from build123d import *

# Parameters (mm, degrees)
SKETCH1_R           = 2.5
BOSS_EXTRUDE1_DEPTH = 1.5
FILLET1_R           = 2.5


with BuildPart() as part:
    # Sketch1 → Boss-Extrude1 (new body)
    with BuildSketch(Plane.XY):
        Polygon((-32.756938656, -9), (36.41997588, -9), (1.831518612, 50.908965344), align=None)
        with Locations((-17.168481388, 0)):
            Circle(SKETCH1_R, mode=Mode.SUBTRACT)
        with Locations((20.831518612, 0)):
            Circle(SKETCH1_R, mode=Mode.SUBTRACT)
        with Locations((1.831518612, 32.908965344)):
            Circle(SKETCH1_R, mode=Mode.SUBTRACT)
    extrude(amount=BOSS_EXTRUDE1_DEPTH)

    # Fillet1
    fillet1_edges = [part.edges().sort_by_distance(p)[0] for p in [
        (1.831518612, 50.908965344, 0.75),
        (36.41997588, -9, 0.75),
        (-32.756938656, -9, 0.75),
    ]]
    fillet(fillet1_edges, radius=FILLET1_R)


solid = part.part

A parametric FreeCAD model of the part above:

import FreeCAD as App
import Part
import Sketcher

V = App.Vector
Q = App.Units.Quantity


def edges_at(feature, points):
    """Names of the edges that pass closest to the given points."""
    edges = feature.Shape.Edges
    near = lambda p: min(range(len(edges)), key=lambda i: edges[i].distToShape(Part.Vertex(*p))[0])
    return sorted({f"Edge{near(p) + 1}" for p in points})


def add_polygon(sketch, points):
    """Adds a closed chain of lines whose ends are joined by coincident constraints."""
    first, n = sketch.GeometryCount, len(points)
    for a, b in zip(points, points[1:] + points[:1]):
        sketch.addGeometry(Part.LineSegment(App.Vector(*a, 0), App.Vector(*b, 0)), False)
    for i in range(n):
        sketch.addConstraint(Sketcher.Constraint("Coincident", first + i, 2, first + (i + 1) % n, 1))

doc = App.newDocument("Part")
params = doc.addObject("Spreadsheet::Sheet", "Params")
for row, (alias, value) in enumerate([
    ("sketch1_diameter", "5 mm"),
    ("pad1_length", "1.5 mm"),
    ("fillet_radius", "2.5 mm"),
], start=1):
    params.set(f"A{row}", alias)
    params.set(f"B{row}", "=" + value)
    params.setAlias(f"B{row}", alias)

body = doc.addObject("PartDesign::Body", "Body")

# Sketch on XY plane
sketch1 = doc.addObject("Sketcher::SketchObject", "Sketch")
body.addObject(sketch1)
sketch1.AttachmentSupport = (doc.XY_Plane, [""])
sketch1.MapMode = "FlatFace"
add_polygon(sketch1, [(-32.8, -9), (36.4, -9), (1.8, 50.9)])  # lines 0-2
sketch1.addGeometry(Part.Circle(V(-17.2, 0, 0), V(0, 0, 1), 2.5), False)  # 3
sketch1.addGeometry(Part.Circle(V(20.8, 0, 0), V(0, 0, 1), 2.5), False)  # 4
sketch1.addGeometry(Part.Circle(V(1.8, 32.9, 0), V(0, 0, 1), 2.5), False)  # 5
sketch1.addConstraint([
    Sketcher.Constraint("Horizontal", 0),
    Sketcher.Constraint("Equal", 3, 4),
    Sketcher.Constraint("Equal", 4, 5),
    Sketcher.Constraint("PointOnObject", 3, 3, -1),
    Sketcher.Constraint("PointOnObject", 4, 3, -1),
    Sketcher.Constraint("Vertical", 5, 3, 1, 2),
    Sketcher.Constraint("Equal", 1, 2),
    Sketcher.Constraint("Diameter", 3, 5.0),
    Sketcher.Constraint("Angle", 1, Q("120 deg")),
    Sketcher.Constraint("DistanceY", 0, 2, -1, 1, 9.0),
    Sketcher.Constraint("DistanceX", 3, 3, 4, 3, 38.0),
    Sketcher.Constraint("DistanceX", 3, 3, 5, 3, 19.0),
    Sketcher.Constraint("DistanceY", 5, 3, 1, 2, 18.0),
    Sketcher.Constraint("DistanceX", 0, 1, 0, 2, 69.176915),
    Sketcher.Constraint("DistanceX", 3, 3, -1, 1, 17.168481),
])
sketch1.setExpression("Constraints[10]", "Params.sketch1_diameter")
pad1 = doc.addObject("PartDesign::Pad", "Pad")
body.addObject(pad1)
pad1.Profile = sketch1
pad1.setExpression("Length", "Params.pad1_length")
doc.recompute()

fillet = doc.addObject("PartDesign::Fillet", "Fillet")
body.addObject(fillet)
fillet.Base = (pad1, edges_at(pad1, [(1.832, 50.909, 0.75), (36.42, -9, 0.75), (-32.757, -9, 0.75)]))
fillet.setExpression("Radius", "Params.fillet_radius")

doc.recompute()
